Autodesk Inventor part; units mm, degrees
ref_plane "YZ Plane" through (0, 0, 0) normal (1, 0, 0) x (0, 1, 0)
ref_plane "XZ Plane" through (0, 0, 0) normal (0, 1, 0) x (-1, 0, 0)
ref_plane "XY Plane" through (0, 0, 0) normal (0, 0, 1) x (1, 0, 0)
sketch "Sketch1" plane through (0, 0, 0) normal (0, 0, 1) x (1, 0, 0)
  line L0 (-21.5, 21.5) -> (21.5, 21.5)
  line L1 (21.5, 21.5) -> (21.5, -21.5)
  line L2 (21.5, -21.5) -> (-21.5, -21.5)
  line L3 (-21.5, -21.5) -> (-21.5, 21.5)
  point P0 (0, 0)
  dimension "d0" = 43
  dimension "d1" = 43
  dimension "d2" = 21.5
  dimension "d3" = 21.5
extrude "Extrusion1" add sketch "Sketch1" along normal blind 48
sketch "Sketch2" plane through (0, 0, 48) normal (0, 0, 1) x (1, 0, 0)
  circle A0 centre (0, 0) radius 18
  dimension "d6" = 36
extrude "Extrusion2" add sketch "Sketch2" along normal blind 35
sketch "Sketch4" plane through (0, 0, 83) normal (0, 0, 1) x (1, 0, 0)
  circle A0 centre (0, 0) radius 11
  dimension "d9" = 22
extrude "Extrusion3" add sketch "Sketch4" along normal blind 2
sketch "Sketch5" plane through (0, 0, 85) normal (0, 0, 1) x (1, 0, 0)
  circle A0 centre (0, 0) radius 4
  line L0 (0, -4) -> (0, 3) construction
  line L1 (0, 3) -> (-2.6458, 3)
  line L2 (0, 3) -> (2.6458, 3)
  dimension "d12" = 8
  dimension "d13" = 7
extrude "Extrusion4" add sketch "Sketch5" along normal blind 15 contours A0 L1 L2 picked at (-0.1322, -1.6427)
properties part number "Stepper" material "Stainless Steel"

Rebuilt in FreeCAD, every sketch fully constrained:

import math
import FreeCAD as App
import Part
import Sketcher

V = App.Vector

doc = App.newDocument("Part")
body = doc.addObject("PartDesign::Body", "Body")

# Sketch on XY plane
sketch1 = body.newObject("Sketcher::SketchObject", "Sketch")
sketch1.AttachmentSupport = (doc.getObject("XY_Plane"), [""])
sketch1.MapMode = "FlatFace"
sketch1.addGeometry(Part.LineSegment(V(22, 22, 0), V(-22, 22, 0)), False)
sketch1.addGeometry(Part.LineSegment(V(-22, 22, 0), V(-22, -22, 0)), False)
sketch1.addGeometry(Part.LineSegment(V(-22, -22, 0), V(22, -22, 0)), False)
sketch1.addGeometry(Part.LineSegment(V(22, -22, 0), V(22, 22, 0)), False)
sketch1.addConstraint(Sketcher.Constraint("Coincident", 0, 2, 1, 1))
sketch1.addConstraint(Sketcher.Constraint("Coincident", 1, 2, 2, 1))
sketch1.addConstraint(Sketcher.Constraint("Coincident", 2, 2, 3, 1))
sketch1.addConstraint(Sketcher.Constraint("Coincident", 3, 2, 0, 1))
sketch1.addConstraint(Sketcher.Constraint("Horizontal", 0))
sketch1.addConstraint(Sketcher.Constraint("Vertical", 1))
sketch1.addConstraint(Sketcher.Constraint("Horizontal", 2))
sketch1.addConstraint(Sketcher.Constraint("Vertical", 3))
sketch1.addConstraint(Sketcher.Constraint("Symmetric", 0, 2, 2, 2, -1, 1))
sketch1.addConstraint(Sketcher.Constraint("Equal", 2, 1))
sketch1.addConstraint(Sketcher.Constraint("DistanceX", 0, 2, 0, 1, 43.0))
pad1 = body.newObject("PartDesign::Pad", "Pad")
pad1.Profile = sketch1
pad1.Length = 48

# Sketch on XY plane
sketch2 = body.newObject("Sketcher::SketchObject", "Sketch001")
sketch2.AttachmentSupport = (doc.getObject("XY_Plane"), [""])
sketch2.MapMode = "FlatFace"
sketch2.AttachmentOffset = App.Placement(V(0, 0, 48), App.Rotation())
sketch2.addGeometry(Part.Circle(V(0, 0, 0), V(0, 0, 1), 18), False)
sketch2.addConstraint(Sketcher.Constraint("Coincident", 0, 3, -1, 1))
sketch2.addConstraint(Sketcher.Constraint("Diameter", 0, 36.0))
pad2 = body.newObject("PartDesign::Pad", "Pad001")
pad2.Profile = sketch2
pad2.Length = 35

# Sketch on XY plane
sketch3 = body.newObject("Sketcher::SketchObject", "Sketch002")
sketch3.AttachmentSupport = (doc.getObject("XY_Plane"), [""])
sketch3.MapMode = "FlatFace"
sketch3.AttachmentOffset = App.Placement(V(0, 0, 83), App.Rotation())
sketch3.addGeometry(Part.Circle(V(0, 0, 0), V(0, 0, 1), 11), False)
sketch3.addConstraint(Sketcher.Constraint("Coincident", 0, 3, -1, 1))
sketch3.addConstraint(Sketcher.Constraint("Diameter", 0, 22.0))
pad3 = body.newObject("PartDesign::Pad", "Pad002")
pad3.Profile = sketch3
pad3.Length = 2

# Sketch on XY plane
sketch4 = body.newObject("Sketcher::SketchObject", "Sketch003")
sketch4.AttachmentSupport = (doc.getObject("XY_Plane"), [""])
sketch4.MapMode = "FlatFace"
sketch4.AttachmentOffset = App.Placement(V(0, 0, 85), App.Rotation())
sketch4.addGeometry(Part.ArcOfCircle(Part.Circle(V(0, 0, 0), V(0, 0, 1), 4), math.radians(131), math.radians(409)), False)
sketch4.addGeometry(Part.LineSegment(V(-2.6, 3, 0), V(2.6, 3, 0)), False)
sketch4.addConstraint(Sketcher.Constraint("Coincident", 0, 1, 1, 1))
sketch4.addConstraint(Sketcher.Constraint("Coincident", 1, 2, 0, 2))
sketch4.addConstraint(Sketcher.Constraint("Horizontal", 1))
sketch4.addConstraint(Sketcher.Constraint("Coincident", 0, 3, -1, 1))
sketch4.addConstraint(Sketcher.Constraint("Radius", 0, 4.0))
sketch4.addConstraint(Sketcher.Constraint("DistanceY", -1, 1, 0, 1, 3.0))
pad4 = body.newObject("PartDesign::Pad", "Pad003")
pad4.Profile = sketch4
pad4.Length = 15

doc.recompute()
